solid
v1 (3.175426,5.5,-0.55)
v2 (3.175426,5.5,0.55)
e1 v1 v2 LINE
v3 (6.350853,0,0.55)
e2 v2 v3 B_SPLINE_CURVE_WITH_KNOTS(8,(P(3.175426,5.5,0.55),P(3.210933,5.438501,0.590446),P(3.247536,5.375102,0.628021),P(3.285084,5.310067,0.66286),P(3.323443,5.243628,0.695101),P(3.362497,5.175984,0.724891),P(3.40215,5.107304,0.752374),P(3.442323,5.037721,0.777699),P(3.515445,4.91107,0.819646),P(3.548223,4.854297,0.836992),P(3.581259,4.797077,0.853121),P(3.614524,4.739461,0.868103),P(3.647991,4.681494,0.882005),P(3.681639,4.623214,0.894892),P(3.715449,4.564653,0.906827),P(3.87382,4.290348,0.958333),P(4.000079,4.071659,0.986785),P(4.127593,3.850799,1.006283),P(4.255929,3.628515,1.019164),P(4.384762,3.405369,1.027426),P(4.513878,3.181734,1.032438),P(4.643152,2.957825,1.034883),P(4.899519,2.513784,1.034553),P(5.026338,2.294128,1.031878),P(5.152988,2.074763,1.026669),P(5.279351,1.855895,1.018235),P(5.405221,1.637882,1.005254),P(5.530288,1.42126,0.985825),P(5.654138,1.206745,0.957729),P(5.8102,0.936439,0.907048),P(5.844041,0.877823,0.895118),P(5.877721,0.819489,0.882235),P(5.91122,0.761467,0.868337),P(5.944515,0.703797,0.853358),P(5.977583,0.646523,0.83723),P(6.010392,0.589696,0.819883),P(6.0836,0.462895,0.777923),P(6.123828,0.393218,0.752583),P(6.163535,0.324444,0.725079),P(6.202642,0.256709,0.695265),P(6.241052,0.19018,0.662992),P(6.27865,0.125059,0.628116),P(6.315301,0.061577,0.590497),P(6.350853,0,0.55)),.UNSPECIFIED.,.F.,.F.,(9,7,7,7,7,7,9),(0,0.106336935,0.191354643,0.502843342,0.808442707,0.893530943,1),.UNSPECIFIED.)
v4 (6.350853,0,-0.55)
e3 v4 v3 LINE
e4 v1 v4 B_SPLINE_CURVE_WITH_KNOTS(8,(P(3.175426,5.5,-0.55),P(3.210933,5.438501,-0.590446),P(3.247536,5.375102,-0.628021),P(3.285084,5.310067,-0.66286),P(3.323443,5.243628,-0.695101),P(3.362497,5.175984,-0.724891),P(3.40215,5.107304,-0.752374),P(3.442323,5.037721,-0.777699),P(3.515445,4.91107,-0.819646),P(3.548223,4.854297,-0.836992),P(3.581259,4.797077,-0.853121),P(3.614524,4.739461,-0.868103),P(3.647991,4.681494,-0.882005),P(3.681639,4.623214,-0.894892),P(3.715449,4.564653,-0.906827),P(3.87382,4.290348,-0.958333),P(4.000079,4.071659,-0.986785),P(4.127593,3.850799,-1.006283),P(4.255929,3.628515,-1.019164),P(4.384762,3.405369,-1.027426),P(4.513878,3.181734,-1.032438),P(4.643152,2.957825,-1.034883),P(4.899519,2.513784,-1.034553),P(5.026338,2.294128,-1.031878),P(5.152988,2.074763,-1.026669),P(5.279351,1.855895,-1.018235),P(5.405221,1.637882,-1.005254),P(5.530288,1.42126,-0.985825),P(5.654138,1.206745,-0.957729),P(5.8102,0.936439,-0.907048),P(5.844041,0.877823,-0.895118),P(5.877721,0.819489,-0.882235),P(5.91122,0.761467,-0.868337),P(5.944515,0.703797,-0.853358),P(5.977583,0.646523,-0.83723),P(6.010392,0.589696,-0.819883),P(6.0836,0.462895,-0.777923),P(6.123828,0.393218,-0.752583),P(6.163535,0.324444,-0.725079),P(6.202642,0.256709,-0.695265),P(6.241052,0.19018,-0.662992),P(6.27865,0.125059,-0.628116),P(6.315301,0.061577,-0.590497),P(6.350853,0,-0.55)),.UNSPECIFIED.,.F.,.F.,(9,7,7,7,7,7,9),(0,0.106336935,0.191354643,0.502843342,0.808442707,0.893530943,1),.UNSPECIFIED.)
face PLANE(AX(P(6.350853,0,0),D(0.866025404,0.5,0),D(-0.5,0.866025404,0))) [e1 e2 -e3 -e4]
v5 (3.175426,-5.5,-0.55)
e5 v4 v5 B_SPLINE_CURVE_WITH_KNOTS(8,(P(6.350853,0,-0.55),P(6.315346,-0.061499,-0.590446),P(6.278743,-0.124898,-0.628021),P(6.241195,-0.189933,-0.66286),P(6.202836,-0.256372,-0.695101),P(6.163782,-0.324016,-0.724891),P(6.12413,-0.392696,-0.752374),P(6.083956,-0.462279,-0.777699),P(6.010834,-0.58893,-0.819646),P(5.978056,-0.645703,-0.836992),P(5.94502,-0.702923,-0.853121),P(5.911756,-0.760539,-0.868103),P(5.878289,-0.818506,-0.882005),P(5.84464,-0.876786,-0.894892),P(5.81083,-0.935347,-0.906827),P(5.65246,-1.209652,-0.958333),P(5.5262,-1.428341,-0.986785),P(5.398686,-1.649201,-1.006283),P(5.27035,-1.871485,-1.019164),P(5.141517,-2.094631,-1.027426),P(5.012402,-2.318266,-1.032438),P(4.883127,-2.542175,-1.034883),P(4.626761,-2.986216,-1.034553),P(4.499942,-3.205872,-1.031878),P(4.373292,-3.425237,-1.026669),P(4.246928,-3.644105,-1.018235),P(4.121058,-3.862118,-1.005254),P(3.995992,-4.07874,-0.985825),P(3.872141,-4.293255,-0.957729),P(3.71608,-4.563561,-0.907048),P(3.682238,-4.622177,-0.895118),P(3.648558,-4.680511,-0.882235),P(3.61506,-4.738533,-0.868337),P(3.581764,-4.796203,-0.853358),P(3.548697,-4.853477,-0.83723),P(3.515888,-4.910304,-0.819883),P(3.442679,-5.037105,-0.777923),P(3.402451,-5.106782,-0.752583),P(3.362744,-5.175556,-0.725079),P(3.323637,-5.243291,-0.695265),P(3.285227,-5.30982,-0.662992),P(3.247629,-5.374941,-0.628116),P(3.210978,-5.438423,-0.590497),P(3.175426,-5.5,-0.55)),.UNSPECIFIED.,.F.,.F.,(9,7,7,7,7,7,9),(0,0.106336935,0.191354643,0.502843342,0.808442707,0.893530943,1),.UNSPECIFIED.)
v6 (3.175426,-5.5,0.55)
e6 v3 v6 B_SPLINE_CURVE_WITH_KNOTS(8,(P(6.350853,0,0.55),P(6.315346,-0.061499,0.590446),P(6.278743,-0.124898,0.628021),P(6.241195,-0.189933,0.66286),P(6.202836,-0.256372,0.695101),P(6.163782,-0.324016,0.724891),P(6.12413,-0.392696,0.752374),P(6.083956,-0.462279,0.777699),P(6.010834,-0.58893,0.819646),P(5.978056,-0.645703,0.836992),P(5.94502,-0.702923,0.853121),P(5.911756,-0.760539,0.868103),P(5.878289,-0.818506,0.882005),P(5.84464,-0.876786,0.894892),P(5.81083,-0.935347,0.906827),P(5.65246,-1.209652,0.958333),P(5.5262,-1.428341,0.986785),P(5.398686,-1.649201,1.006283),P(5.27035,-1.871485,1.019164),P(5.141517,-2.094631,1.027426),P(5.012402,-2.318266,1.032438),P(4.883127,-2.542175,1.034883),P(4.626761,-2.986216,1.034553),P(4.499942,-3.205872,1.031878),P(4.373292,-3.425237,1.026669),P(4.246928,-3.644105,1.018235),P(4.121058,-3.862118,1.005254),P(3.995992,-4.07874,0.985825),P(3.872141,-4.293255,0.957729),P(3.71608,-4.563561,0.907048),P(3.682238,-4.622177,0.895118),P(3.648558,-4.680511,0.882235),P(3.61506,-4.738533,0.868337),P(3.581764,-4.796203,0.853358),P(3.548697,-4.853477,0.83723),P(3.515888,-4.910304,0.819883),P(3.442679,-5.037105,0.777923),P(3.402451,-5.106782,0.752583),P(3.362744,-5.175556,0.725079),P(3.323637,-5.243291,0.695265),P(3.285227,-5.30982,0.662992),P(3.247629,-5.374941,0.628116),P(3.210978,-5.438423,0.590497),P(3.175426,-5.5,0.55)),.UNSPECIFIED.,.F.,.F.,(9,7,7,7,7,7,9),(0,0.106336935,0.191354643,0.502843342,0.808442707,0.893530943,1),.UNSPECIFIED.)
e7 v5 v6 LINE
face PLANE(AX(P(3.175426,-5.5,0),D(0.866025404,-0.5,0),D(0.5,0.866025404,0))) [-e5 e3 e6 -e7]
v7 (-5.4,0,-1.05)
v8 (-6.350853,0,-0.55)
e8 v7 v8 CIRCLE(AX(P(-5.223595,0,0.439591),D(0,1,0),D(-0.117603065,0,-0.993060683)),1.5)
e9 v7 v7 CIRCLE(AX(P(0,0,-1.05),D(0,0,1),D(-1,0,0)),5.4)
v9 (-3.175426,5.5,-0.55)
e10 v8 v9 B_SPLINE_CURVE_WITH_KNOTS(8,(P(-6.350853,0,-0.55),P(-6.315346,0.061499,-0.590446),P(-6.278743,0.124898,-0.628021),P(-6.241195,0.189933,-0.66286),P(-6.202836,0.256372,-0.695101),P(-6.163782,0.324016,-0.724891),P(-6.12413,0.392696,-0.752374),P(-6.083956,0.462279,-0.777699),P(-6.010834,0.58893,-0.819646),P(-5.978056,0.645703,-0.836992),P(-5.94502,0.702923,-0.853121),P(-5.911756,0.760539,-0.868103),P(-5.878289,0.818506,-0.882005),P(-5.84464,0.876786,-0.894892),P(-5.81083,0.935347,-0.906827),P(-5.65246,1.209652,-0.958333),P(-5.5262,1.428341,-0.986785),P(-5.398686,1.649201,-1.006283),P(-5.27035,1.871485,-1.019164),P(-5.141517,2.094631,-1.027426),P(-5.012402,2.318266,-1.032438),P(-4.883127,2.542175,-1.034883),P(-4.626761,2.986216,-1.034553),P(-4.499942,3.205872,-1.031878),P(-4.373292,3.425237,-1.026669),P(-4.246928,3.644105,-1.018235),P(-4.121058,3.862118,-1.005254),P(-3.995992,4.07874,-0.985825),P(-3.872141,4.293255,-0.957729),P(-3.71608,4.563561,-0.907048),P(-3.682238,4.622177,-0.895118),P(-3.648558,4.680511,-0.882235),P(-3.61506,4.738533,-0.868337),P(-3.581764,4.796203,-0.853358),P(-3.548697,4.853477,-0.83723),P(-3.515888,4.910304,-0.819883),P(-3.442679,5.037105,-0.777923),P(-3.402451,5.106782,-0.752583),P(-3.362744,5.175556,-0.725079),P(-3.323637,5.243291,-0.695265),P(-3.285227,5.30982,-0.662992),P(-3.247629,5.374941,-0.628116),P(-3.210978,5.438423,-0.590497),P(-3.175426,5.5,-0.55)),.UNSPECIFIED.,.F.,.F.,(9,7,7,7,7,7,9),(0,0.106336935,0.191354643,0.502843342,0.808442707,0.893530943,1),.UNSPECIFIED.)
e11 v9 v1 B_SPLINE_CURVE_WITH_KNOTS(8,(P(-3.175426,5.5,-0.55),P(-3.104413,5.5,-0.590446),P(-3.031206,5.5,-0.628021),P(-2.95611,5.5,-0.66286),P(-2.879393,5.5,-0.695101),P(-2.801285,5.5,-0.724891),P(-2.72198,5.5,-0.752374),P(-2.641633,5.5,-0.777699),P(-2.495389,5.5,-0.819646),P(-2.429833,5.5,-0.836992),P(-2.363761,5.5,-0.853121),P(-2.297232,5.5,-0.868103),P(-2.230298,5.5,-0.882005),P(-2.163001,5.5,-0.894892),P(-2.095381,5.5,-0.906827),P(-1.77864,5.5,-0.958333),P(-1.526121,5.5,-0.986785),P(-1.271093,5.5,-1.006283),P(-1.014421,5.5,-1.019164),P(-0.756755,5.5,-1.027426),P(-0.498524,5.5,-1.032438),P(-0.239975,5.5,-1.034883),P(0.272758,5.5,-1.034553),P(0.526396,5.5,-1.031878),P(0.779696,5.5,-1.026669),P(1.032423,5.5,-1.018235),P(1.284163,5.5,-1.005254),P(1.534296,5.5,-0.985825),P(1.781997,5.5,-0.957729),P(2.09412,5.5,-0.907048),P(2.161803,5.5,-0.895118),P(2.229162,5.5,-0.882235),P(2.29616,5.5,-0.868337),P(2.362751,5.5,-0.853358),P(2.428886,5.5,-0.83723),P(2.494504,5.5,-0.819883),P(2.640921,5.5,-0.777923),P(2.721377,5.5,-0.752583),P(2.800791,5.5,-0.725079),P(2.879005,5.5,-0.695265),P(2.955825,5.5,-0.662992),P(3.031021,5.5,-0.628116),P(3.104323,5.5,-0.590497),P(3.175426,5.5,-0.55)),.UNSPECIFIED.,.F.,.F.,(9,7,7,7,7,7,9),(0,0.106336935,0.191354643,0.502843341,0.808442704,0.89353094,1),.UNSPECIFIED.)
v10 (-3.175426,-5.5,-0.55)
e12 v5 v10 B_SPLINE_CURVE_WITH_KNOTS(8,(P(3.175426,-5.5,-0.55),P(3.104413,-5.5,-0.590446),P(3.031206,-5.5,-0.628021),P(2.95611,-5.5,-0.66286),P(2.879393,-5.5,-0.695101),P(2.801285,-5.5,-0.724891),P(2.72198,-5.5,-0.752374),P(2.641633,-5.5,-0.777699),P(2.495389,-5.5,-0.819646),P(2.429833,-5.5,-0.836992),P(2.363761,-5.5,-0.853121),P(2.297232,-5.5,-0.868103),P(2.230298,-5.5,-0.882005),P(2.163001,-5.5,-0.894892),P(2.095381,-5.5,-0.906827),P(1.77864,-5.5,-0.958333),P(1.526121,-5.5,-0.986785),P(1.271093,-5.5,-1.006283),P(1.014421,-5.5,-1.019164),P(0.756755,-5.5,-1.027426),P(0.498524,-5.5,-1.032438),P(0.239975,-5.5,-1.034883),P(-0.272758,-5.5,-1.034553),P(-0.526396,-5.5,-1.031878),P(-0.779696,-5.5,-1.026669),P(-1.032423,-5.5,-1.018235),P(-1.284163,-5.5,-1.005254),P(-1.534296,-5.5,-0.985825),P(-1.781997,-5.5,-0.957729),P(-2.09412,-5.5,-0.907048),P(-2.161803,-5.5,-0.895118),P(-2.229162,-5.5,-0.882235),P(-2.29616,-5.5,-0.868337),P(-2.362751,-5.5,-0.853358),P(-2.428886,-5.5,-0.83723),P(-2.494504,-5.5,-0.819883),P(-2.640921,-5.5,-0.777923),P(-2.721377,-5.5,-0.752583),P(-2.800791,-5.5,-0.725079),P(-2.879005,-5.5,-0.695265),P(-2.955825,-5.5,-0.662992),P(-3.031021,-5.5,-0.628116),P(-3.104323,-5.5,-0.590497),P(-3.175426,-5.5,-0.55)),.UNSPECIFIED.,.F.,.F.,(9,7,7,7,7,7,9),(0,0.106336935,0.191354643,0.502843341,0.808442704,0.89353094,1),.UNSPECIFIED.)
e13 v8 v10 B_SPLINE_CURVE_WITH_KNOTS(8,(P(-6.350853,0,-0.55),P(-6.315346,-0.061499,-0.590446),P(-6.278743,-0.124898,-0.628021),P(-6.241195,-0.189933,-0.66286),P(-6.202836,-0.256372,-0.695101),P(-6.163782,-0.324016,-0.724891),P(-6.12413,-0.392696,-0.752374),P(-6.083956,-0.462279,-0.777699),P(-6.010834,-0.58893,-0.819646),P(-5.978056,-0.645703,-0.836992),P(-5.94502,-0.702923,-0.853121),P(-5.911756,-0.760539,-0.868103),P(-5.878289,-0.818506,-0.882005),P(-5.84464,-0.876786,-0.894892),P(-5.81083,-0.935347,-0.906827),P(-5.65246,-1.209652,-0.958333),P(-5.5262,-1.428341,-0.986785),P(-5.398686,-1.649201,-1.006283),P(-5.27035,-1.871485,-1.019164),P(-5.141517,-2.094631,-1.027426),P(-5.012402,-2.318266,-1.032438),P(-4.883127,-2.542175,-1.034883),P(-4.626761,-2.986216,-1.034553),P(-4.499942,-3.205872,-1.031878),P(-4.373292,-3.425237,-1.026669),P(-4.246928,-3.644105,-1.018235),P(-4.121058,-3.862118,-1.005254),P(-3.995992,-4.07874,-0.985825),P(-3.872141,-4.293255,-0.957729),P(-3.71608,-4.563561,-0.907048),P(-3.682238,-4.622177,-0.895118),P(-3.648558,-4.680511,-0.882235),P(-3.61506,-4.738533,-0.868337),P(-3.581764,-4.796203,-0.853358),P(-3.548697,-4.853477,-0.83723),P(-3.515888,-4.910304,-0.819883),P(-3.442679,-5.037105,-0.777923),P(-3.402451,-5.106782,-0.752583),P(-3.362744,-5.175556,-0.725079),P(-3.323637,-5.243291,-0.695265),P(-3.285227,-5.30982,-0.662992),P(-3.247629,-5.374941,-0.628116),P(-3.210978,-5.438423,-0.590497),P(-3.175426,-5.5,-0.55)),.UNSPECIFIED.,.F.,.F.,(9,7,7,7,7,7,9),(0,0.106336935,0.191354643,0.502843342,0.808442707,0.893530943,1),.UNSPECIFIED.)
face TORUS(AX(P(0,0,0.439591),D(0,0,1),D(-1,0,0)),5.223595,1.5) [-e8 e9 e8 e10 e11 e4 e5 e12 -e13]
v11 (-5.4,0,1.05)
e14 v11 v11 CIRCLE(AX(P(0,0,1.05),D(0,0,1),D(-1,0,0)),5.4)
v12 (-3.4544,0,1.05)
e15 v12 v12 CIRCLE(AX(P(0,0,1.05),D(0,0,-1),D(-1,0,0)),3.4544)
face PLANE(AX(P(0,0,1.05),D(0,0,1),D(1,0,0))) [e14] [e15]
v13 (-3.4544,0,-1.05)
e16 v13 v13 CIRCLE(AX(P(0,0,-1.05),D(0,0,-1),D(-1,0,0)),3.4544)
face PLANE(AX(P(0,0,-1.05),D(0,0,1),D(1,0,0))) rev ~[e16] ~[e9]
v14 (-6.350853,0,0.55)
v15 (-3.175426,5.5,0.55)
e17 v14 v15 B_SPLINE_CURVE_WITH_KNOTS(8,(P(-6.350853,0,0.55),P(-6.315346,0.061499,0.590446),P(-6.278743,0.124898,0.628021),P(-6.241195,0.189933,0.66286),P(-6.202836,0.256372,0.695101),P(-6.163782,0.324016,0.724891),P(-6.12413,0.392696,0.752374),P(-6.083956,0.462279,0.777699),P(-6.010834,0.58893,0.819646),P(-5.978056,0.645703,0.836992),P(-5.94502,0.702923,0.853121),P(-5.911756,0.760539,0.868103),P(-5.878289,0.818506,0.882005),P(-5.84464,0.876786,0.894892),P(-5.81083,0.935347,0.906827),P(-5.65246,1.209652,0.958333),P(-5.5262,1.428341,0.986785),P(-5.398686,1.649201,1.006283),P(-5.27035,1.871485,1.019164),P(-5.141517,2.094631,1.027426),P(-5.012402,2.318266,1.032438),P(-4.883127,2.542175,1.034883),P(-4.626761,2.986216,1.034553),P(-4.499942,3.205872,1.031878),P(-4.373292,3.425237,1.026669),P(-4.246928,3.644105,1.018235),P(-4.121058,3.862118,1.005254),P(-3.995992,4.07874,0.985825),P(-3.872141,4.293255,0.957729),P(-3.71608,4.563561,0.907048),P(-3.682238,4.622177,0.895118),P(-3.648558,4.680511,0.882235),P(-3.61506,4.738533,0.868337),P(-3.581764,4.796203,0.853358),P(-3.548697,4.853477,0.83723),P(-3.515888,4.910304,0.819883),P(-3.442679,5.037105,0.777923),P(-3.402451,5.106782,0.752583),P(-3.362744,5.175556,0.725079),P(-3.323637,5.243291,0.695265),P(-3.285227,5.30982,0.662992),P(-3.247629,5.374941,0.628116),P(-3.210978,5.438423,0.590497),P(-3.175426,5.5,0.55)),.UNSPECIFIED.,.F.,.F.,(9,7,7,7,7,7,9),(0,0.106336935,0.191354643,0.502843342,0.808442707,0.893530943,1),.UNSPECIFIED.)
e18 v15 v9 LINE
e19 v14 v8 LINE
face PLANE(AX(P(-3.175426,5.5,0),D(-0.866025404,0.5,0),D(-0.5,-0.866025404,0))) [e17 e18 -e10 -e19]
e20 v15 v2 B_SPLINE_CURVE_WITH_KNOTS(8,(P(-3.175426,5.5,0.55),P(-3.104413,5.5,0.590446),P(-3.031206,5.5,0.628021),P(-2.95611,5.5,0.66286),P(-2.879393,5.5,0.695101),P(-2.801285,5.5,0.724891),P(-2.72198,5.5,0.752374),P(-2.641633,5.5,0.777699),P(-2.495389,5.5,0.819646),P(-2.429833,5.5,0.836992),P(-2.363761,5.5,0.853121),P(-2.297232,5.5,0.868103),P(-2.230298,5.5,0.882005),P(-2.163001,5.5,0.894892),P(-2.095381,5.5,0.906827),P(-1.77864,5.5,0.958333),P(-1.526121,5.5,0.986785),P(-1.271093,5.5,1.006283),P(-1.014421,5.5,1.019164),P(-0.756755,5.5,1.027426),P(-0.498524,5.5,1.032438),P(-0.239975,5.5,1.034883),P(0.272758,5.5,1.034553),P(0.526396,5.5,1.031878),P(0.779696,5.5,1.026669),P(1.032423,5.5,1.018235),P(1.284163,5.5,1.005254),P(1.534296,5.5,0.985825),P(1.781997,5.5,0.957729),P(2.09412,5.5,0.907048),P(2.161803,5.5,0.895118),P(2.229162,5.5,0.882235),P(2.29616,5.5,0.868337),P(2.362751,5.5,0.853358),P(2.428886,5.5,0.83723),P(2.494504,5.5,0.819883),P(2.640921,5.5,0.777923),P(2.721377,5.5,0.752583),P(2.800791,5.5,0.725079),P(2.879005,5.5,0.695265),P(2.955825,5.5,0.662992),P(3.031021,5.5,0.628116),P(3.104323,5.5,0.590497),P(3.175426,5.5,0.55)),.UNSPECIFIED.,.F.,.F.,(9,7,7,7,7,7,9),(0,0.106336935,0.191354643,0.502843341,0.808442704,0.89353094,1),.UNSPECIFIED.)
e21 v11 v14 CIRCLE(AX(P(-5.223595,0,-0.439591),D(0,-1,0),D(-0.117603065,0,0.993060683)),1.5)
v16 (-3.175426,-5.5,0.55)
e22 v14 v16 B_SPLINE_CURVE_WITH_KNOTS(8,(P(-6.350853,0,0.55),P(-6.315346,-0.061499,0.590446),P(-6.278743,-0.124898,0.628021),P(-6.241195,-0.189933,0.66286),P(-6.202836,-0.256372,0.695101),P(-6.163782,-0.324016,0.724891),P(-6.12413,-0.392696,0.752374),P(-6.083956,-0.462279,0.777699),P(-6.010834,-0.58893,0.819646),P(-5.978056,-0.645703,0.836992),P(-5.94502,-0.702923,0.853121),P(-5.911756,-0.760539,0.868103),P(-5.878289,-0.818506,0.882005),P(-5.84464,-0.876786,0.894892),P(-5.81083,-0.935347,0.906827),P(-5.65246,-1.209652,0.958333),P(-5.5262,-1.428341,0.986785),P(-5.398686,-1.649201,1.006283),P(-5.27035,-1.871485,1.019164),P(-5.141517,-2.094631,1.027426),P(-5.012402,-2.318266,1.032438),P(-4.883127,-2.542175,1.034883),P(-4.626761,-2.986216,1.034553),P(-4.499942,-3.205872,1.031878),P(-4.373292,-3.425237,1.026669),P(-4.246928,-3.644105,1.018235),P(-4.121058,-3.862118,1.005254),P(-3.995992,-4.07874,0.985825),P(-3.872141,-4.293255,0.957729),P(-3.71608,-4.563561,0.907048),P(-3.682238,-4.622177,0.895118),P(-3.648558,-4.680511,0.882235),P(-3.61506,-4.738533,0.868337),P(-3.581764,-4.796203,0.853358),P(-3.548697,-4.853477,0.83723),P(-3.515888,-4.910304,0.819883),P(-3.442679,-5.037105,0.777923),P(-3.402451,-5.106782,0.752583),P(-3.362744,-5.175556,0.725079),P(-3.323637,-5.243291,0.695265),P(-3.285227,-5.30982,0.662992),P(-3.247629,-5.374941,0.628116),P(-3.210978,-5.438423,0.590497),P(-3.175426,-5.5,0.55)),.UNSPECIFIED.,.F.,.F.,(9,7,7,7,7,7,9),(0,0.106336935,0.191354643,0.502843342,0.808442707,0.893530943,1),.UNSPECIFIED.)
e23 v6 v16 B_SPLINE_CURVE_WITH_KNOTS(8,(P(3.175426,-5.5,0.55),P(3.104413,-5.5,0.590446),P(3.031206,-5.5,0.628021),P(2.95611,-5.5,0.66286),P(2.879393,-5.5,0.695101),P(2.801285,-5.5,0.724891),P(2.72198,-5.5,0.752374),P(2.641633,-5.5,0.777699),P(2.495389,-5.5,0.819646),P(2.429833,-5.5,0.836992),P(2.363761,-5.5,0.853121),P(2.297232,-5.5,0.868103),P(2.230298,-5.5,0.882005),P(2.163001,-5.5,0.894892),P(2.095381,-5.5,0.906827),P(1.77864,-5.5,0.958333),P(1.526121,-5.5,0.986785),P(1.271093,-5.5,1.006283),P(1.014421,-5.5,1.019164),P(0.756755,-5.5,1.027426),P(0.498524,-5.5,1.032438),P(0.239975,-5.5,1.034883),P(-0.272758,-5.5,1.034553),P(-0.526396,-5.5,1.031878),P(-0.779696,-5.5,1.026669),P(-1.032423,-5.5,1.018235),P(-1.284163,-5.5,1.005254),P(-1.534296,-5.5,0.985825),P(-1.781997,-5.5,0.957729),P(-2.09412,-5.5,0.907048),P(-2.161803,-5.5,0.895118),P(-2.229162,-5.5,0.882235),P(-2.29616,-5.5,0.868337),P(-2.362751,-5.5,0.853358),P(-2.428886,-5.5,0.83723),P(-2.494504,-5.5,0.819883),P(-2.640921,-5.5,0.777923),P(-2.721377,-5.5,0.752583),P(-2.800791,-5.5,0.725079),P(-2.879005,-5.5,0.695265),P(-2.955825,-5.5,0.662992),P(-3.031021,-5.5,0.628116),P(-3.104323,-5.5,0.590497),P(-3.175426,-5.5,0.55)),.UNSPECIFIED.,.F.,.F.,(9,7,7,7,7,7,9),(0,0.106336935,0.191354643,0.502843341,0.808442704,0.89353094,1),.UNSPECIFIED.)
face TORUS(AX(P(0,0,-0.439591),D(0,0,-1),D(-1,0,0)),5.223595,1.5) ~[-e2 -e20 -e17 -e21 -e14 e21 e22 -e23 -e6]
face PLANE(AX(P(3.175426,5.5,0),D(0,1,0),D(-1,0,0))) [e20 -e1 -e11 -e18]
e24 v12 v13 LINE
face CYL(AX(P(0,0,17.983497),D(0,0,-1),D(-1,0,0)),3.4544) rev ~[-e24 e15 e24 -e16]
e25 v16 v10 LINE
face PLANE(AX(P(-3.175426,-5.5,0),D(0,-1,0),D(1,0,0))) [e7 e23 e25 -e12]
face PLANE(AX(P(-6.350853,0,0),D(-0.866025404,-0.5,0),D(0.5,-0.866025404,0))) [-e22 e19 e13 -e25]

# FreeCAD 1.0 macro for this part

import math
import FreeCAD as App
import Part
import Sketcher

V = App.Vector
Q = App.Units.Quantity


def add_polygon(sketch, points):
    """Adds a closed chain of lines whose ends are joined by coincident constraints."""
    first, n = sketch.GeometryCount, len(points)
    for a, b in zip(points, points[1:] + points[:1]):
        sketch.addGeometry(Part.LineSegment(App.Vector(*a, 0), App.Vector(*b, 0)), False)
    for i in range(n):
        sketch.addConstraint(Sketcher.Constraint("Coincident", first + i, 2, first + (i + 1) % n, 1))

doc = App.newDocument("Part")
body = doc.addObject("PartDesign::Body", "Body")

sketch1 = body.newObject("Sketcher::SketchObject", "Sketch")
sketch1.AttachmentSupport = (doc.getObject("XY_Plane"), [""])
sketch1.MapMode = "FlatFace"
add_polygon(sketch1, [(-3, -6), (3, -6), (6, 0), (3, 6), (-3, 6), (-6, 0)])
sketch1.addConstraint([
    Sketcher.Constraint("Horizontal", 0),
    Sketcher.Constraint("Horizontal", 3),
    Sketcher.Constraint("Symmetric", 0, 2, 3, 2, -1, 1),
    Sketcher.Constraint("Symmetric", 1, 2, 4, 2, -1, 1),
    Sketcher.Constraint("PointOnObject", 1, 2, -1),
    Sketcher.Constraint("Parallel", 2, 5),
    Sketcher.Constraint("Vertical", 0, 2, 2, 2),
    Sketcher.Constraint("Angle", 1, Q("60 deg")),
    Sketcher.Constraint("DistanceY", 0, 2, 2, 2, 11.0),
    Sketcher.Constraint("DistanceX", 0, 1, 0, 2, 6.350853),
])
pad1 = body.newObject("PartDesign::Pad", "Pad")
pad1.Profile = sketch1
pad1.Length = 2.1
pad1.Midplane = True

sketch2 = body.newObject("Sketcher::SketchObject", "Sketch001")
sketch2.AttachmentSupport = (doc.getObject("XY_Plane"), [""])
sketch2.MapMode = "FlatFace"
sketch2.AttachmentOffset = App.Placement(V(0, 0, 1.05), App.Rotation())
sketch2.addGeometry(Part.Circle(V(0, 0, 0), V(0, 0, 1), 3.5), False)
sketch2.addConstraint([
    Sketcher.Constraint("Coincident", 0, 3, -1, 1),
    Sketcher.Constraint("Diameter", 0, 6.9088),
])
doc.recompute()
hole = body.newObject("PartDesign::Hole", "Hole")
hole.Profile = sketch2
hole.ThreadType = "None"
hole.Diameter = 6.9088
hole.DepthType = "ThroughAll"

sketch3 = body.newObject("Sketcher::SketchObject", "Sketch002")
sketch3.AttachmentSupport = (doc.getObject("XZ_Plane"), [""])
sketch3.MapMode = "FlatFace"
sketch3.addGeometry([
    Part.LineSegment(V(-6.4, 0.6, 0), V(-6.4, 1.1, 0)),
    Part.LineSegment(V(-6.4, 1.1, 0), V(-5.4, 1.1, 0)),
    Part.ArcOfCircle(Part.Circle(V(-5.2, -0.4, 0), V(0, 0, 1), 1.5), math.radians(97), math.radians(139)),
], False)
sketch3.addConstraint([
    Sketcher.Constraint("Coincident", 0, 2, 1, 1),
    Sketcher.Constraint("Coincident", 1, 2, 2, 1),
    Sketcher.Constraint("Coincident", 2, 2, 0, 1),
    Sketcher.Constraint("Vertical", 0),
    Sketcher.Constraint("Horizontal", 1),
    Sketcher.Constraint("Radius", 2, 1.5),
    Sketcher.Constraint("DistanceY", 0, 1, 0, 2, 0.5),
    Sketcher.Constraint("DistanceX", 1, 2, -1, 1, 5.4),
    Sketcher.Constraint("DistanceY", -1, 1, 0, 2, 1.05),
    Sketcher.Constraint("DistanceX", 1, 1, 1, 2, 0.950853),
])
groove = body.newObject("PartDesign::Groove", "Groove")
groove.Profile = sketch3
groove.ReferenceAxis = (sketch3, ["V_Axis"])
groove.Angle = 360
doc.recompute()

mirrored = body.newObject("PartDesign::Mirrored", "Mirrored")
mirrored.Originals = [groove]
mirrored.MirrorPlane = (doc.getObject("XY_Plane"), [""])
body.Tip = mirrored

doc.recompute()
